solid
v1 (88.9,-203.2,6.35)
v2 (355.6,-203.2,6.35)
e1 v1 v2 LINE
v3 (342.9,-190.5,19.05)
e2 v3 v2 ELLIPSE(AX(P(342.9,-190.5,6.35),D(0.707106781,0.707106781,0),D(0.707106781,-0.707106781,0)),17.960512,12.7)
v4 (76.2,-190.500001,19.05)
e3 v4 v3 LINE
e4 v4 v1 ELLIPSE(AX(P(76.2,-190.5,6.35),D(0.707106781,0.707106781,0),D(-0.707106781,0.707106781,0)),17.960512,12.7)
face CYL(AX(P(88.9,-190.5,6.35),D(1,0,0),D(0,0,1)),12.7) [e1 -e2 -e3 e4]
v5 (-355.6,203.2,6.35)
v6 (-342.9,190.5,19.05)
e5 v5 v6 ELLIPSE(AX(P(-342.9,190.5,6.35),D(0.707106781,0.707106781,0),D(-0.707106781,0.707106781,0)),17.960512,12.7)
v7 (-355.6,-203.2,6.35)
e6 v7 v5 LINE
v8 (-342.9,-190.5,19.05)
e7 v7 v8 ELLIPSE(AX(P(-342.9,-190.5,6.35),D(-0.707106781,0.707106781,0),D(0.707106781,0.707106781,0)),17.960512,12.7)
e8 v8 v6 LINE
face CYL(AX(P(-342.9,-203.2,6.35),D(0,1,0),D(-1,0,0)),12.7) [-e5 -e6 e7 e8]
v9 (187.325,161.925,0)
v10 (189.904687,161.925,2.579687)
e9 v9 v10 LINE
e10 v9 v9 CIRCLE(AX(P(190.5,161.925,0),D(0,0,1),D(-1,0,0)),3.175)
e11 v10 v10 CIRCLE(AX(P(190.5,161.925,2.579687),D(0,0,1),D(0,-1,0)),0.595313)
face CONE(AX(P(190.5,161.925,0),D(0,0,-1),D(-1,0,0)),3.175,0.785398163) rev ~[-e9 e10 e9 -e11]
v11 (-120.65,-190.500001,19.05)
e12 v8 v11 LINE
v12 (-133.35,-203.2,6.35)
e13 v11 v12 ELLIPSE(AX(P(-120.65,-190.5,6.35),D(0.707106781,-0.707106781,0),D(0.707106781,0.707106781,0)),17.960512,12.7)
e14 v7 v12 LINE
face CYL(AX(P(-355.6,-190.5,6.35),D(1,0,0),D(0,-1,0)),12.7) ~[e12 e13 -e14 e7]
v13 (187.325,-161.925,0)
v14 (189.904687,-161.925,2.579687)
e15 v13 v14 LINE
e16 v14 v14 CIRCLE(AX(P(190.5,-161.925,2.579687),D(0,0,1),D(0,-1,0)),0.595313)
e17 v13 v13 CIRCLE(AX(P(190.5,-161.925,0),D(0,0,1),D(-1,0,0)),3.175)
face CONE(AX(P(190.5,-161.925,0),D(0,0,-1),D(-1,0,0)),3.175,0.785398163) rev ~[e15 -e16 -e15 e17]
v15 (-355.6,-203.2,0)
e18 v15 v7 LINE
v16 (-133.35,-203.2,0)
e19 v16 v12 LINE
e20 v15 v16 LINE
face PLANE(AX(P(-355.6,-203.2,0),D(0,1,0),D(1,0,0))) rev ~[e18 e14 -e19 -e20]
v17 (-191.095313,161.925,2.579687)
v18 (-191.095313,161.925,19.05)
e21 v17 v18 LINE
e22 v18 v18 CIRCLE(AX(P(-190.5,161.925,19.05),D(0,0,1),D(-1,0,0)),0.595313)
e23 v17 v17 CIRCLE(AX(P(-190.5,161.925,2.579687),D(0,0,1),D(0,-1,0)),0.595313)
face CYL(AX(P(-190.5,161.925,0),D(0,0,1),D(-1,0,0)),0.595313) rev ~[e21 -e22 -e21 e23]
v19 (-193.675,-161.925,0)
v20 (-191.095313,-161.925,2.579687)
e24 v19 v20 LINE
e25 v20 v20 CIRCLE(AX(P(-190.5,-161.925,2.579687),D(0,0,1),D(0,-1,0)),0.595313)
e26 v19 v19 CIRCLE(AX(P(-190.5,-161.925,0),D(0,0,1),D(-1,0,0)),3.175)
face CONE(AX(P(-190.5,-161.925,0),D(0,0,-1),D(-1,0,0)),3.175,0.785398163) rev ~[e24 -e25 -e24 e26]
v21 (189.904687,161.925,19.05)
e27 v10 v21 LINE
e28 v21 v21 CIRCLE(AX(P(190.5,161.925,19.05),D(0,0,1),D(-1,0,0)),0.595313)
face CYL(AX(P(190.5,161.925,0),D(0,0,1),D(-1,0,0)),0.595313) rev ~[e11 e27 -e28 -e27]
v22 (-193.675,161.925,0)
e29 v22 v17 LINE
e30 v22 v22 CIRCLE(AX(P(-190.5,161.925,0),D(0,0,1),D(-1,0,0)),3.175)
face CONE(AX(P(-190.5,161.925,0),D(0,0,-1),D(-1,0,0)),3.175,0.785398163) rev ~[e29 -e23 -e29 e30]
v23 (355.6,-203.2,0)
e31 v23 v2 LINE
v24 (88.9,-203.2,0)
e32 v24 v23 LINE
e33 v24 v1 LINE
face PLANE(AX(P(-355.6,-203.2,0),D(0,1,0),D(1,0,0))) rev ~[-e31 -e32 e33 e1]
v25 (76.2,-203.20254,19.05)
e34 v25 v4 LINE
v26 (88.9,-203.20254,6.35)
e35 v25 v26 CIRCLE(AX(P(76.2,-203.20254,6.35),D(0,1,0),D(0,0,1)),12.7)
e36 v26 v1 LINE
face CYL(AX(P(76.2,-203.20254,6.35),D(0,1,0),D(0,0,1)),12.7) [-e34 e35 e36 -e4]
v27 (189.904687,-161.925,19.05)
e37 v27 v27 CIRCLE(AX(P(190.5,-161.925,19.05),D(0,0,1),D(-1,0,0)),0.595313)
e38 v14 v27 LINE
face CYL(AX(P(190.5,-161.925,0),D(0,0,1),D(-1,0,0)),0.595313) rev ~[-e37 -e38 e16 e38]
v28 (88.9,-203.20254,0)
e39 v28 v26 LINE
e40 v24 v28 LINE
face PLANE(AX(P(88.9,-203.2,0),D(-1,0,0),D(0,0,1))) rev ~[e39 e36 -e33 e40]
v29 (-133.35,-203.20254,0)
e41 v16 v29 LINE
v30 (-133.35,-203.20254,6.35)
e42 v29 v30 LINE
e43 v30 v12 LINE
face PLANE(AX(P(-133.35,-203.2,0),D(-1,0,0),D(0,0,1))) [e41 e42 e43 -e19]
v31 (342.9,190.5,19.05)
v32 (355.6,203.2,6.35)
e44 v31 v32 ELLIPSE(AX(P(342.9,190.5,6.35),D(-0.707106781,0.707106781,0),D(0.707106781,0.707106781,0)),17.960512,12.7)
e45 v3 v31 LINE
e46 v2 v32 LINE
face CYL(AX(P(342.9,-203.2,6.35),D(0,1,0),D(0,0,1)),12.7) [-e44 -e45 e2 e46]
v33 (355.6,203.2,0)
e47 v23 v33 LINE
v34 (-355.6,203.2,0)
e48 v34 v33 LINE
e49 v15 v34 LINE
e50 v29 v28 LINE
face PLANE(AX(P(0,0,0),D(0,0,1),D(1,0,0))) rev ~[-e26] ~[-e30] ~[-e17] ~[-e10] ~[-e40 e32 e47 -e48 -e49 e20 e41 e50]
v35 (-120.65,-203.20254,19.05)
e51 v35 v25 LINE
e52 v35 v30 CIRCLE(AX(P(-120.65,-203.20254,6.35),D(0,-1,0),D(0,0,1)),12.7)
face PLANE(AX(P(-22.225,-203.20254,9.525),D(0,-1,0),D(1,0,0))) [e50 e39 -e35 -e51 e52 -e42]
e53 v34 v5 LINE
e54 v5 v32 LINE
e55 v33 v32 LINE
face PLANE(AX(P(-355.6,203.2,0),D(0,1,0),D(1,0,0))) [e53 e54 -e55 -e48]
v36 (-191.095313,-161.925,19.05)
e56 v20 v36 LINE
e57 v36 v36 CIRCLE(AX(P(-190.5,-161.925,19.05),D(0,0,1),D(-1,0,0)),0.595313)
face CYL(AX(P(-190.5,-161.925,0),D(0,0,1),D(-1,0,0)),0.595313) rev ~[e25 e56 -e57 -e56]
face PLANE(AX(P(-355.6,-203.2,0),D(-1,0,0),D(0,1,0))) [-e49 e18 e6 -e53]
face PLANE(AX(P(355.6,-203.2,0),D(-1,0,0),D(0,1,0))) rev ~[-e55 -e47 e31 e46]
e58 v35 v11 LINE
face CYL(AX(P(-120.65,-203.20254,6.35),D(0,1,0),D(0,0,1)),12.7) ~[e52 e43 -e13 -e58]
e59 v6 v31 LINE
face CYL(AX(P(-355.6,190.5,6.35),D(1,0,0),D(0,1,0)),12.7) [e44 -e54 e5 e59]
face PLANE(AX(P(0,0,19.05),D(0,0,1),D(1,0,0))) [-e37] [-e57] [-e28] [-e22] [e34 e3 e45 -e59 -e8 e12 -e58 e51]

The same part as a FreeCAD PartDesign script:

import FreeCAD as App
import Part
import Sketcher
from FreeCAD import Vector
Q = App.Units.Quantity


def edges_at(feature, points):
    """Names of the edges that pass closest to the given points."""
    edges = feature.Shape.Edges
    near = lambda p: min(range(len(edges)), key=lambda i: edges[i].distToShape(Part.Vertex(*p))[0])
    return sorted({f"Edge{near(p) + 1}" for p in points})


def add_polygon(sketch, points):
    """Adds a closed chain of lines whose ends are joined by coincident constraints."""
    first, n = sketch.GeometryCount, len(points)
    for a, b in zip(points, points[1:] + points[:1]):
        sketch.addGeometry(Part.LineSegment(App.Vector(*a, 0), App.Vector(*b, 0)), False)
    for i in range(n):
        sketch.addConstraint(Sketcher.Constraint("Coincident", first + i, 2, first + (i + 1) % n, 1))

doc = App.newDocument("Part")
body = doc.addObject("PartDesign::Body", "Body")

# Sketch on XY plane
sketch1 = doc.addObject("Sketcher::SketchObject", "Sketch")
body.addObject(sketch1)
sketch1.AttachmentSupport = (doc.XY_Plane, [""])
sketch1.MapMode = "FlatFace"
add_polygon(sketch1, [(-356, 203), (-356, -203), (356, -203), (356, 203)])  # lines 0-3
sketch1.addConstraint(Sketcher.Constraint("Vertical", 0))
sketch1.addConstraint(Sketcher.Constraint("Horizontal", 1))
sketch1.addConstraint(Sketcher.Constraint("Vertical", 2))
sketch1.addConstraint(Sketcher.Constraint("Horizontal", 3))
sketch1.addConstraint(Sketcher.Constraint("Symmetric", 0, 2, 2, 2, -1, 1))
sketch1.addConstraint(Sketcher.Constraint("DistanceX", 1, 1, 1, 2, Q("28 in")))
sketch1.addConstraint(Sketcher.Constraint("DistanceY", 0, 2, 0, 1, Q("16 in")))
pad1 = doc.addObject("PartDesign::Pad", "Pad")
body.addObject(pad1)
pad1.Profile = sketch1
pad1.Length = Q("0.75 in")

# Sketch on XZ plane
sketch2 = doc.addObject("Sketcher::SketchObject", "Sketch001")
body.addObject(sketch2)
sketch2.AttachmentSupport = (doc.XZ_Plane, [""])
sketch2.MapMode = "FlatFace"
sketch2.AttachmentOffset = App.Placement(Vector(0, 0, 8 * 25.4), App.Rotation())
add_polygon(sketch2, [(-133, 19), (-133, 0), (89, 0), (89, 19)])  # lines 0-3
sketch2.addConstraint(Sketcher.Constraint("Vertical", 0))
sketch2.addConstraint(Sketcher.Constraint("Horizontal", 1))
sketch2.addConstraint(Sketcher.Constraint("Vertical", 2))
sketch2.addConstraint(Sketcher.Constraint("Horizontal", 3))
sketch2.addConstraint(Sketcher.Constraint("PointOnObject", 0, 2, -1))
sketch2.addConstraint(Sketcher.Constraint("DistanceX", 1, 1, 1, 2, Q("8.75 in")))
sketch2.addConstraint(Sketcher.Constraint("DistanceY", 0, 2, 0, 1, Q("0.75 in")))
sketch2.addConstraint(Sketcher.Constraint("DistanceX", -1, 1, 1, 2, Q("3.5 in")))
pad2 = doc.addObject("PartDesign::Pad", "Pad001")
body.addObject(pad2)
pad2.Profile = sketch2
pad2.Length = Q("0.0001 in")
doc.recompute()

fillet = doc.addObject("PartDesign::Fillet", "Fillet")
body.addObject(fillet)
fillet.Base = (pad2, edges_at(pad2, [
    (-244.475, -203.2, 19.05),
    (-355.6, 0, 19.05),
    (222.25, -203.2, 19.05),
    (355.6, 0, 19.05),
    (0, 203.2, 19.05),
]))
fillet.Radius = Q("0.5 in")
doc.recompute()

fillet2 = doc.addObject("PartDesign::Fillet", "Fillet001")
body.addObject(fillet2)
fillet2.Base = (fillet, edges_at(fillet, [(88.9, -196.851, 19.05), (-133.35, -196.851, 19.05)]))
fillet2.Radius = Q("0.5 in")

# Sketch on XY plane
sketch3 = doc.addObject("Sketcher::SketchObject", "Sketch002")
body.addObject(sketch3)
sketch3.AttachmentSupport = (doc.XY_Plane, [""])
sketch3.MapMode = "FlatFace"
sketch3.addGeometry(Part.Circle(Vector(190.5, 161.9, 0), Vector(0, 0, 1), 0.6), False)
sketch3.addGeometry(Part.Circle(Vector(190.5, -161.9, 0), Vector(0, 0, 1), 0.6), False)
sketch3.addGeometry(Part.Circle(Vector(-190.5, 161.9, 0), Vector(0, 0, 1), 0.6), False)
sketch3.addGeometry(Part.Circle(Vector(-190.5, -161.9, 0), Vector(0, 0, 1), 0.6), False)
sketch3.addConstraint(Sketcher.Constraint("Equal", 0, 1))
sketch3.addConstraint(Sketcher.Constraint("Equal", 1, 2))
sketch3.addConstraint(Sketcher.Constraint("Equal", 2, 3))
sketch3.addConstraint(Sketcher.Constraint("Symmetric", 1, 3, 2, 3, -1, 1))
sketch3.addConstraint(Sketcher.Constraint("Symmetric", 0, 3, 3, 3, -1, 1))
sketch3.addConstraint(Sketcher.Constraint("Symmetric", 0, 3, 2, 3, -2))
sketch3.addConstraint(Sketcher.Constraint("Diameter", 0, Q("0.046875 in")))
sketch3.addConstraint(Sketcher.Constraint("DistanceX", 2, 3, 0, 3, Q("15 in")))
sketch3.addConstraint(Sketcher.Constraint("DistanceY", 1, 3, 0, 3, Q("12.75 in")))
doc.recompute()
hole = doc.addObject("PartDesign::Hole", "Hole")
body.addObject(hole)
hole.Profile = sketch3
hole.ThreadType = "None"
hole.Diameter = Q("0.046875 in")
hole.DepthType = "ThroughAll"
hole.HoleCutType = "Countersink"
hole.HoleCutDiameter = Q("0.25 in")
hole.HoleCutCountersinkAngle = 90
hole.Reversed = True

doc.recompute()
